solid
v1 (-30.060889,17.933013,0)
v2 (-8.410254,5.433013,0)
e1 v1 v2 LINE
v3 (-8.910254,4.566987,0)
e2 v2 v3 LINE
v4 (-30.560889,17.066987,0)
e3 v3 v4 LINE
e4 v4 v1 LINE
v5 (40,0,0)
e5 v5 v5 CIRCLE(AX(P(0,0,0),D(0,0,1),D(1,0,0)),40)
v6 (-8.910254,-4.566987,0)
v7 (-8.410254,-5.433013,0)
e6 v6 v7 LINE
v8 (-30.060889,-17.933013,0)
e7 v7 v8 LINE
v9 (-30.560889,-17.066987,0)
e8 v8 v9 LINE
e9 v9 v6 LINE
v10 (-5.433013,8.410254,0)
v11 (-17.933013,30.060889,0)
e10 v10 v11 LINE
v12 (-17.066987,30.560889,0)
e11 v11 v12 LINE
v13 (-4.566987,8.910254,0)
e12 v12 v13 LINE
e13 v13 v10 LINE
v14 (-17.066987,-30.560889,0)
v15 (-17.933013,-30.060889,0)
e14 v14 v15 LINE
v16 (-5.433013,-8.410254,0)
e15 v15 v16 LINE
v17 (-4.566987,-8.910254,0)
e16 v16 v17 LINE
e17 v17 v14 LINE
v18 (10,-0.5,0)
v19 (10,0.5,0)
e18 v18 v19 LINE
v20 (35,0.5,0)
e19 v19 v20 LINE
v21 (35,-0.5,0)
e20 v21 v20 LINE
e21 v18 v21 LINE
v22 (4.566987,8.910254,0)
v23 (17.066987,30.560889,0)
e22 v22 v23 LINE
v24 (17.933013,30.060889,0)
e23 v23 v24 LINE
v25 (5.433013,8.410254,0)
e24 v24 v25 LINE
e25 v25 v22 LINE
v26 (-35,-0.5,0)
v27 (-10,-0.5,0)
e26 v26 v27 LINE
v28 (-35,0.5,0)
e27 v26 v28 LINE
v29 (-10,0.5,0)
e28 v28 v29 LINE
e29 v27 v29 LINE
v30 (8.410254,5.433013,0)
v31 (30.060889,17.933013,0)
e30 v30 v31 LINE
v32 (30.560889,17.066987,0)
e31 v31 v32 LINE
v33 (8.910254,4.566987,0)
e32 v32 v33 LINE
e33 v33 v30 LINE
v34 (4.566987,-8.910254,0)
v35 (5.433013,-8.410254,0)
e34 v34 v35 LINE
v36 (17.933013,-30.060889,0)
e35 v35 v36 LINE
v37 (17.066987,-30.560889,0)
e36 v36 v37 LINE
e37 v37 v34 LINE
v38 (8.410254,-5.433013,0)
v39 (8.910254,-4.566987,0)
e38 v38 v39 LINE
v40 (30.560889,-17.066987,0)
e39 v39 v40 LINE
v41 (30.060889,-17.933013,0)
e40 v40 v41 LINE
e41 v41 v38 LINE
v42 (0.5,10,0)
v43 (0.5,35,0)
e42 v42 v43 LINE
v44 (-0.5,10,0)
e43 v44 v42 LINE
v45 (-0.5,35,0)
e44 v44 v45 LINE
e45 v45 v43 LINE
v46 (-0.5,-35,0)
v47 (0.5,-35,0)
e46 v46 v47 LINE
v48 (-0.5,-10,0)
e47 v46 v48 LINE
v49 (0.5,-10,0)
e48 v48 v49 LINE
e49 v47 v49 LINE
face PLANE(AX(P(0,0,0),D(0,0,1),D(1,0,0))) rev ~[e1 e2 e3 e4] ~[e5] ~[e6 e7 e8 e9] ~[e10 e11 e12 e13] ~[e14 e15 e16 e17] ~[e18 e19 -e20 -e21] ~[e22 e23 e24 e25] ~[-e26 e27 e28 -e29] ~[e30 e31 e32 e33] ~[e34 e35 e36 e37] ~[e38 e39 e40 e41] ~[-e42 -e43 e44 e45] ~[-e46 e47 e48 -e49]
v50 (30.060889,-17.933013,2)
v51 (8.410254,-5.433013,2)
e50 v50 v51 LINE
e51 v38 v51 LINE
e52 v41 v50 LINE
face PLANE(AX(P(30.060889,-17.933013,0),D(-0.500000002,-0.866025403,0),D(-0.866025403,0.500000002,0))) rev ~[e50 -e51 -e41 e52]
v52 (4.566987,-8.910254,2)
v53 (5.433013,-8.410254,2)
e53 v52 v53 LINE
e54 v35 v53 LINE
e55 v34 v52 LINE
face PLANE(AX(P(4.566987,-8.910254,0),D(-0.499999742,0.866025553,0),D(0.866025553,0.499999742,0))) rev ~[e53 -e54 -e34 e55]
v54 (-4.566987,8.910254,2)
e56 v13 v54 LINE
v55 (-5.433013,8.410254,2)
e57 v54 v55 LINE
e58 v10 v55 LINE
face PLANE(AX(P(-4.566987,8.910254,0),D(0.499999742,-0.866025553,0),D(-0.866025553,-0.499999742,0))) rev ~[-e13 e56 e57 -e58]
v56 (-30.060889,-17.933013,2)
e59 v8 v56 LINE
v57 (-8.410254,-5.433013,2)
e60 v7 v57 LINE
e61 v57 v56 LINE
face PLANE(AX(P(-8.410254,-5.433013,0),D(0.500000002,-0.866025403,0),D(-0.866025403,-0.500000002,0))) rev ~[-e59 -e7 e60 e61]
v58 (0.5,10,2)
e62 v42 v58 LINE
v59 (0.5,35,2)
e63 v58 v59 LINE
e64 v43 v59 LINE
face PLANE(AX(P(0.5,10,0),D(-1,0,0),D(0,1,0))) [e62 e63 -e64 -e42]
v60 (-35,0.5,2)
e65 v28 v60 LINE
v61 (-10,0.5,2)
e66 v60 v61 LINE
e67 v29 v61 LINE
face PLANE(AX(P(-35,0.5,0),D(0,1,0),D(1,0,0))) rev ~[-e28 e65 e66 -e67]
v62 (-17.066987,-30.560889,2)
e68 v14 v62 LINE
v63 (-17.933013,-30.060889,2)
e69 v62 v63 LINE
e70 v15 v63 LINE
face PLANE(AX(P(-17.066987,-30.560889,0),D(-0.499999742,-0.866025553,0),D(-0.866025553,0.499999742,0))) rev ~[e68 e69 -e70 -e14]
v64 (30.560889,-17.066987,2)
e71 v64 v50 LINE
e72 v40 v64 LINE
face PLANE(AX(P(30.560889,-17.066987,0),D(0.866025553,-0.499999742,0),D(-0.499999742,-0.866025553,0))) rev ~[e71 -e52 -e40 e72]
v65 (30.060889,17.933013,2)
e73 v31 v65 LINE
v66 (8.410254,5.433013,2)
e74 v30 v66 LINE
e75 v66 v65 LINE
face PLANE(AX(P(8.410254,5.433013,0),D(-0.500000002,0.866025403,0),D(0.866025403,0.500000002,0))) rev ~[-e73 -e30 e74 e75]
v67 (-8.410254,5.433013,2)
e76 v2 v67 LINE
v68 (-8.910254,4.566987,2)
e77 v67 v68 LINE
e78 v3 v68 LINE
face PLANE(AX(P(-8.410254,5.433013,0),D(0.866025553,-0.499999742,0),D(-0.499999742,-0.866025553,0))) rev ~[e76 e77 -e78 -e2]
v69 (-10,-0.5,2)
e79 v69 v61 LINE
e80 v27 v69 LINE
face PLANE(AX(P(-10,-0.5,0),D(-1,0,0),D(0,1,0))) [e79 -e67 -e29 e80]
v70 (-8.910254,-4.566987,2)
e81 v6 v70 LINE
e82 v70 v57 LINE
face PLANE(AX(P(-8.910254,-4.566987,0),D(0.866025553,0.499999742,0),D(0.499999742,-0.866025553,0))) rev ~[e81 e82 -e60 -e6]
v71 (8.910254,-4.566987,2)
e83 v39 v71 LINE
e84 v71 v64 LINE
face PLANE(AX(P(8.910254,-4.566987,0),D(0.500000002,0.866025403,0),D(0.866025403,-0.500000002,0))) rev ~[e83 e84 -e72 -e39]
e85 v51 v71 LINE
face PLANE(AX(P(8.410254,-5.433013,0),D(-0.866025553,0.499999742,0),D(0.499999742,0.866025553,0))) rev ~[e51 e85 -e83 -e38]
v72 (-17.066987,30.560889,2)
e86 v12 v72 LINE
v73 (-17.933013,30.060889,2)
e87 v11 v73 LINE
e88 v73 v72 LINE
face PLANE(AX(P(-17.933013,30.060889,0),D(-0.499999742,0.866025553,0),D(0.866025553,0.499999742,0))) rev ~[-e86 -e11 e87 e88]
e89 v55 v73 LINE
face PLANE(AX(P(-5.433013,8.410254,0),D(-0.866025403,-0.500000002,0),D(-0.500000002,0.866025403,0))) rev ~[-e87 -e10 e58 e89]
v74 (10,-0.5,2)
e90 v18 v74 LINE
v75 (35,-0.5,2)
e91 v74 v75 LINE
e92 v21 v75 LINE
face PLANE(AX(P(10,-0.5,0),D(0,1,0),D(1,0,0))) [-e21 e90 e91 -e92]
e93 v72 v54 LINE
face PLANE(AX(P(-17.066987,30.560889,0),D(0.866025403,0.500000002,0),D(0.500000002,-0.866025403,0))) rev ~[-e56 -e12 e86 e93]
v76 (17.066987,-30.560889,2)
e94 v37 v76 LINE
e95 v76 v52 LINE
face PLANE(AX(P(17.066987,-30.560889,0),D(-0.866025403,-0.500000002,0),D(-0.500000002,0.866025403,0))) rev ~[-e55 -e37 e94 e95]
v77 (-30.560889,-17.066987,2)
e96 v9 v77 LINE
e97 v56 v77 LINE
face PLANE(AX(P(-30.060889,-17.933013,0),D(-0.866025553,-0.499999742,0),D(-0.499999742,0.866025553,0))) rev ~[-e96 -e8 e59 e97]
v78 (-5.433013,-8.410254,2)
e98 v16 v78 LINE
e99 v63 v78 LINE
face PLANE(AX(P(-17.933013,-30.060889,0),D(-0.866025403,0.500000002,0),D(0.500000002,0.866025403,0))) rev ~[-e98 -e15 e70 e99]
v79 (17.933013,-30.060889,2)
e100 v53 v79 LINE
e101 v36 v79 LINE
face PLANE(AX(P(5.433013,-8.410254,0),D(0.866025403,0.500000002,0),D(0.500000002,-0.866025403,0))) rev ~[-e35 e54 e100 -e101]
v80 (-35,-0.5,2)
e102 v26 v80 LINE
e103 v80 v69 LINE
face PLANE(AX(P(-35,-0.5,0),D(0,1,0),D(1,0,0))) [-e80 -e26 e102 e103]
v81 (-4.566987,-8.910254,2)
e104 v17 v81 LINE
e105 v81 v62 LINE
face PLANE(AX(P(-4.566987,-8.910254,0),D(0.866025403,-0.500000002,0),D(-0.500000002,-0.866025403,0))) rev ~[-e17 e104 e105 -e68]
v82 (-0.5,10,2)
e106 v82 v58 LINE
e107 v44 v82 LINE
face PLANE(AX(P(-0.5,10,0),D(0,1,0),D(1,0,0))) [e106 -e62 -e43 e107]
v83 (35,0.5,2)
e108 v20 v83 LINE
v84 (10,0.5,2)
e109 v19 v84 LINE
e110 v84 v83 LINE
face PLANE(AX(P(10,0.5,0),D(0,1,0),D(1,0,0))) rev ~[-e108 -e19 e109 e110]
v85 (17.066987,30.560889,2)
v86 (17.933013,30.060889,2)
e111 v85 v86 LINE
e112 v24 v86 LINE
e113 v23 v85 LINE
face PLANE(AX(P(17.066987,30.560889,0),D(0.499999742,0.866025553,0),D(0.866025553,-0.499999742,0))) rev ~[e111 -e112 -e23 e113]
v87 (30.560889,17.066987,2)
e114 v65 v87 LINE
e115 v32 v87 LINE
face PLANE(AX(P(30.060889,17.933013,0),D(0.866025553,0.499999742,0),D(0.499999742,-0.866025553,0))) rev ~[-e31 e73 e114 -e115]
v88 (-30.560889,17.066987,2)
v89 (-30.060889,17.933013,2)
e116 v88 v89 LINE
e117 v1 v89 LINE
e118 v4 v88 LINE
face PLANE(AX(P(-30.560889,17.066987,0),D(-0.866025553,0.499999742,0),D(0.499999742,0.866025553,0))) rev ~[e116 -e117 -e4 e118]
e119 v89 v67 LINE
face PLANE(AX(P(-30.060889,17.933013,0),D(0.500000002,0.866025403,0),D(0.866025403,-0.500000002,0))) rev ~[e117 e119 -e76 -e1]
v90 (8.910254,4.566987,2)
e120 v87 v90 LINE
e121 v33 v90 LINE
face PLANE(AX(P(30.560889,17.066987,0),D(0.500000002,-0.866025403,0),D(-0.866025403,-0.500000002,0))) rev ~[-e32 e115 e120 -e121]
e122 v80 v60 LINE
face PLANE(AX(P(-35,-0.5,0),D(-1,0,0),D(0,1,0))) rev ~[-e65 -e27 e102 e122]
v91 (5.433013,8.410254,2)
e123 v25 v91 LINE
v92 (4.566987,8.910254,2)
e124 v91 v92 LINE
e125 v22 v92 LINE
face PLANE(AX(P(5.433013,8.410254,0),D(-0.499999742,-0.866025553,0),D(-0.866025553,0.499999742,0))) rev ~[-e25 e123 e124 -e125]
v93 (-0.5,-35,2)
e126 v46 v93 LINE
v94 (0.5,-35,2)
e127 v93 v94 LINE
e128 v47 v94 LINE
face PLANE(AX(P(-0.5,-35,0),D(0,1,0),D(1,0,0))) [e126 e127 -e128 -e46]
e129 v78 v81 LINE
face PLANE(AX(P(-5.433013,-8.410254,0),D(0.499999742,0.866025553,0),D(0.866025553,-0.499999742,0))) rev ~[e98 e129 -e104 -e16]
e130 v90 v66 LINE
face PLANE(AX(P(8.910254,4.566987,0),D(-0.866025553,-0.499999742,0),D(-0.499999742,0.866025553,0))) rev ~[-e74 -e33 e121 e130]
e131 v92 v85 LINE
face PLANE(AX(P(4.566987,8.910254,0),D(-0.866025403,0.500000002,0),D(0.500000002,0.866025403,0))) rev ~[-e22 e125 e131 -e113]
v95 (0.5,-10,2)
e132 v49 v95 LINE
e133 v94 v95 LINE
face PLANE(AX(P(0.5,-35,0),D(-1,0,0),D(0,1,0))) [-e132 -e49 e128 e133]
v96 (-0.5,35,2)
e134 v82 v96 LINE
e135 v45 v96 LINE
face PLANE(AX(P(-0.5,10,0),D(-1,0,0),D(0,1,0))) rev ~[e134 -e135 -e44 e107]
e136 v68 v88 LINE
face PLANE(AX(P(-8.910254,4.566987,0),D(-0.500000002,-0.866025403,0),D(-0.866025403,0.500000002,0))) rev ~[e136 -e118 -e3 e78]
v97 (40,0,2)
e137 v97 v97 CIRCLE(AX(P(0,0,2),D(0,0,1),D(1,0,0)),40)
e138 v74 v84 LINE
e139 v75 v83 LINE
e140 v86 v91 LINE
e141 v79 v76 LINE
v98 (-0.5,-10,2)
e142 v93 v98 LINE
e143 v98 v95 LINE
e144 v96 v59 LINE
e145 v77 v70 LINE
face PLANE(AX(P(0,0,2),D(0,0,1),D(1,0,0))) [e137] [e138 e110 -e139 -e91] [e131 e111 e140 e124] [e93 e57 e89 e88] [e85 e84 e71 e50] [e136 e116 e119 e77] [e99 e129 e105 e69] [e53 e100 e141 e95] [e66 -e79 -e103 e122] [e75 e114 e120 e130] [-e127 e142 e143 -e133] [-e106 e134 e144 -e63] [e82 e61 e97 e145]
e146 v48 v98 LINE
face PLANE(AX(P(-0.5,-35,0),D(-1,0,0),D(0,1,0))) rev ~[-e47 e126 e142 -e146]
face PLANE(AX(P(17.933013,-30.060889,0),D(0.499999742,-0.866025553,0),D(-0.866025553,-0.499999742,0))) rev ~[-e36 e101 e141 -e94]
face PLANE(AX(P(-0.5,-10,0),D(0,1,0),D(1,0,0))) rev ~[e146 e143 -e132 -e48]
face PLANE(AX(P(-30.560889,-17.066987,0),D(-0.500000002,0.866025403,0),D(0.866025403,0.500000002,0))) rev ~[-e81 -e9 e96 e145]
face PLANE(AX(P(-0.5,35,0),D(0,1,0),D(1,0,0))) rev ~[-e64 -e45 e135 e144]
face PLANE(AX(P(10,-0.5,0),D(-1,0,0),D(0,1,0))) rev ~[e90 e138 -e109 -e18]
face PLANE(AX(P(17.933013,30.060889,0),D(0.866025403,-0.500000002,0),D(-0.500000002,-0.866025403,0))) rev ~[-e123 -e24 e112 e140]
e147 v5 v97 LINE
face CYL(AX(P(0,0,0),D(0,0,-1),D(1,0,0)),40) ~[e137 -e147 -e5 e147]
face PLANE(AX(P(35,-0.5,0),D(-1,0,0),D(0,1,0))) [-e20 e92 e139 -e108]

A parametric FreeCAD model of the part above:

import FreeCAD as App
import Part
import Sketcher

V = App.Vector
Q = App.Units.Quantity

doc = App.newDocument("Part")
body = doc.addObject("PartDesign::Body", "Body")

# Sketch on XY plane
sketch1 = doc.addObject("Sketcher::SketchObject", "Sketch")
body.addObject(sketch1)
sketch1.AttachmentSupport = (doc.XY_Plane, [""])
sketch1.MapMode = "FlatFace"
sketch1.addGeometry(Part.Circle(V(0, 0, 0), V(0, 0, 1), 40), False)
sketch1.addGeometry(Part.LineSegment(V(-5.4, -8.4, 0), V(-4.6, -8.9, 0)), False)
sketch1.addGeometry(Part.LineSegment(V(-4.6, -8.9, 0), V(-17.1, -30.6, 0)), False)
sketch1.addGeometry(Part.LineSegment(V(-17.1, -30.6, 0), V(-17.9, -30.1, 0)), False)
sketch1.addGeometry(Part.LineSegment(V(-17.9, -30.1, 0), V(-5.4, -8.4, 0)), False)
sketch1.addGeometry(Part.LineSegment(V(-8.9, -4.6, 0), V(-8.4, -5.4, 0)), False)
sketch1.addGeometry(Part.LineSegment(V(-8.4, -5.4, 0), V(-30.1, -17.9, 0)), False)
sketch1.addGeometry(Part.LineSegment(V(-30.1, -17.9, 0), V(-30.6, -17.1, 0)), False)
sketch1.addGeometry(Part.LineSegment(V(-30.6, -17.1, 0), V(-8.9, -4.6, 0)), False)
sketch1.addGeometry(Part.LineSegment(V(0.5, -35, 0), V(-0.5, -35, 0)), False)
sketch1.addGeometry(Part.LineSegment(V(-0.5, -35, 0), V(-0.5, -10, 0)), False)
sketch1.addGeometry(Part.LineSegment(V(-0.5, -10, 0), V(0.5, -10, 0)), False)
sketch1.addGeometry(Part.LineSegment(V(0.5, -10, 0), V(0.5, -35, 0)), False)
sketch1.addGeometry(Part.LineSegment(V(4.6, -8.9, 0), V(5.4, -8.4, 0)), False)
sketch1.addGeometry(Part.LineSegment(V(5.4, -8.4, 0), V(17.9, -30.1, 0)), False)
sketch1.addGeometry(Part.LineSegment(V(17.9, -30.1, 0), V(17.1, -30.6, 0)), False)
sketch1.addGeometry(Part.LineSegment(V(17.1, -30.6, 0), V(4.6, -8.9, 0)), False)
sketch1.addGeometry(Part.LineSegment(V(8.4, -5.4, 0), V(8.9, -4.6, 0)), False)
sketch1.addGeometry(Part.LineSegment(V(8.9, -4.6, 0), V(30.6, -17.1, 0)), False)
sketch1.addGeometry(Part.LineSegment(V(30.6, -17.1, 0), V(30.1, -17.9, 0)), False)
sketch1.addGeometry(Part.LineSegment(V(30.1, -17.9, 0), V(8.4, -5.4, 0)), False)
sketch1.addGeometry(Part.LineSegment(V(-10, -0.5, 0), V(-35, -0.5, 0)), False)
sketch1.addGeometry(Part.LineSegment(V(-35, -0.5, 0), V(-35, 0.5, 0)), False)
sketch1.addGeometry(Part.LineSegment(V(-35, 0.5, 0), V(-10, 0.5, 0)), False)
sketch1.addGeometry(Part.LineSegment(V(-10, 0.5, 0), V(-10, -0.5, 0)), False)
sketch1.addGeometry(Part.LineSegment(V(-8.4, 5.4, 0), V(-8.9, 4.6, 0)), False)
sketch1.addGeometry(Part.LineSegment(V(-8.9, 4.6, 0), V(-30.6, 17.1, 0)), False)
sketch1.addGeometry(Part.LineSegment(V(-30.6, 17.1, 0), V(-30.1, 17.9, 0)), False)
sketch1.addGeometry(Part.LineSegment(V(-30.1, 17.9, 0), V(-8.4, 5.4, 0)), False)
sketch1.addGeometry(Part.LineSegment(V(-4.6, 8.9, 0), V(-5.4, 8.4, 0)), False)
sketch1.addGeometry(Part.LineSegment(V(-5.4, 8.4, 0), V(-17.9, 30.1, 0)), False)
sketch1.addGeometry(Part.LineSegment(V(-17.9, 30.1, 0), V(-17.1, 30.6, 0)), False)
sketch1.addGeometry(Part.LineSegment(V(-17.1, 30.6, 0), V(-4.6, 8.9, 0)), False)
sketch1.addGeometry(Part.LineSegment(V(35, -0.5, 0), V(10, -0.5, 0)), False)
sketch1.addGeometry(Part.LineSegment(V(10, -0.5, 0), V(10, 0.5, 0)), False)
sketch1.addGeometry(Part.LineSegment(V(10, 0.5, 0), V(35, 0.5, 0)), False)
sketch1.addGeometry(Part.LineSegment(V(35, 0.5, 0), V(35, -0.5, 0)), False)
sketch1.addGeometry(Part.LineSegment(V(8.9, 4.6, 0), V(8.4, 5.4, 0)), False)
sketch1.addGeometry(Part.LineSegment(V(8.4, 5.4, 0), V(30.1, 17.9, 0)), False)
sketch1.addGeometry(Part.LineSegment(V(30.1, 17.9, 0), V(30.6, 17.1, 0)), False)
sketch1.addGeometry(Part.LineSegment(V(30.6, 17.1, 0), V(8.9, 4.6, 0)), False)
sketch1.addGeometry(Part.LineSegment(V(0.5, 10, 0), V(-0.5, 10, 0)), False)
sketch1.addGeometry(Part.LineSegment(V(-0.5, 10, 0), V(-0.5, 35, 0)), False)
sketch1.addGeometry(Part.LineSegment(V(-0.5, 35, 0), V(0.5, 35, 0)), False)
sketch1.addGeometry(Part.LineSegment(V(0.5, 35, 0), V(0.5, 10, 0)), False)
sketch1.addGeometry(Part.LineSegment(V(5.4, 8.4, 0), V(4.6, 8.9, 0)), False)
sketch1.addGeometry(Part.LineSegment(V(4.6, 8.9, 0), V(17.1, 30.6, 0)), False)
sketch1.addGeometry(Part.LineSegment(V(17.1, 30.6, 0), V(17.9, 30.1, 0)), False)
sketch1.addGeometry(Part.LineSegment(V(17.9, 30.1, 0), V(5.4, 8.4, 0)), False)
sketch1.addConstraint(Sketcher.Constraint("Coincident", 1, 2, 2, 1))
sketch1.addConstraint(Sketcher.Constraint("Coincident", 2, 2, 3, 1))
sketch1.addConstraint(Sketcher.Constraint("Coincident", 3, 2, 4, 1))
sketch1.addConstraint(Sketcher.Constraint("Coincident", 4, 2, 1, 1))
sketch1.addConstraint(Sketcher.Constraint("Coincident", 5, 2, 6, 1))
sketch1.addConstraint(Sketcher.Constraint("Coincident", 6, 2, 7, 1))
sketch1.addConstraint(Sketcher.Constraint("Coincident", 7, 2, 8, 1))
sketch1.addConstraint(Sketcher.Constraint("Coincident", 8, 2, 5, 1))
sketch1.addConstraint(Sketcher.Constraint("Coincident", 9, 2, 10, 1))
sketch1.addConstraint(Sketcher.Constraint("Coincident", 10, 2, 11, 1))
sketch1.addConstraint(Sketcher.Constraint("Coincident", 11, 2, 12, 1))
sketch1.addConstraint(Sketcher.Constraint("Coincident", 12, 2, 9, 1))
sketch1.addConstraint(Sketcher.Constraint("Coincident", 13, 2, 14, 1))
sketch1.addConstraint(Sketcher.Constraint("Coincident", 14, 2, 15, 1))
sketch1.addConstraint(Sketcher.Constraint("Coincident", 15, 2, 16, 1))
sketch1.addConstraint(Sketcher.Constraint("Coincident", 16, 2, 13, 1))
sketch1.addConstraint(Sketcher.Constraint("Coincident", 17, 2, 18, 1))
sketch1.addConstraint(Sketcher.Constraint("Coincident", 18, 2, 19, 1))
sketch1.addConstraint(Sketcher.Constraint("Coincident", 19, 2, 20, 1))
sketch1.addConstraint(Sketcher.Constraint("Coincident", 20, 2, 17, 1))
sketch1.addConstraint(Sketcher.Constraint("Coincident", 21, 2, 22, 1))
sketch1.addConstraint(Sketcher.Constraint("Coincident", 22, 2, 23, 1))
sketch1.addConstraint(Sketcher.Constraint("Coincident", 23, 2, 24, 1))
sketch1.addConstraint(Sketcher.Constraint("Coincident", 24, 2, 21, 1))
sketch1.addConstraint(Sketcher.Constraint("Coincident", 25, 2, 26, 1))
sketch1.addConstraint(Sketcher.Constraint("Coincident", 26, 2, 27, 1))
sketch1.addConstraint(Sketcher.Constraint("Coincident", 27, 2, 28, 1))
sketch1.addConstraint(Sketcher.Constraint("Coincident", 28, 2, 25, 1))
sketch1.addConstraint(Sketcher.Constraint("Coincident", 29, 2, 30, 1))
sketch1.addConstraint(Sketcher.Constraint("Coincident", 30, 2, 31, 1))
sketch1.addConstraint(Sketcher.Constraint("Coincident", 31, 2, 32, 1))
sketch1.addConstraint(Sketcher.Constraint("Coincident", 32, 2, 29, 1))
sketch1.addConstraint(Sketcher.Constraint("Coincident", 33, 2, 34, 1))
sketch1.addConstraint(Sketcher.Constraint("Coincident", 34, 2, 35, 1))
sketch1.addConstraint(Sketcher.Constraint("Coincident", 35, 2, 36, 1))
sketch1.addConstraint(Sketcher.Constraint("Coincident", 36, 2, 33, 1))
sketch1.addConstraint(Sketcher.Constraint("Coincident", 37, 2, 38, 1))
sketch1.addConstraint(Sketcher.Constraint("Coincident", 38, 2, 39, 1))
sketch1.addConstraint(Sketcher.Constraint("Coincident", 39, 2, 40, 1))
sketch1.addConstraint(Sketcher.Constraint("Coincident", 40, 2, 37, 1))
sketch1.addConstraint(Sketcher.Constraint("Coincident", 41, 2, 42, 1))
sketch1.addConstraint(Sketcher.Constraint("Coincident", 42, 2, 43, 1))
sketch1.addConstraint(Sketcher.Constraint("Coincident", 43, 2, 44, 1))
sketch1.addConstraint(Sketcher.Constraint("Coincident", 44, 2, 41, 1))
sketch1.addConstraint(Sketcher.Constraint("Coincident", 45, 2, 46, 1))
sketch1.addConstraint(Sketcher.Constraint("Coincident", 46, 2, 47, 1))
sketch1.addConstraint(Sketcher.Constraint("Coincident", 47, 2, 48, 1))
sketch1.addConstraint(Sketcher.Constraint("Coincident", 48, 2, 45, 1))
sketch1.addConstraint(Sketcher.Constraint("Horizontal", 9))
sketch1.addConstraint(Sketcher.Constraint("Vertical", 10))
sketch1.addConstraint(Sketcher.Constraint("Horizontal", 11))
sketch1.addConstraint(Sketcher.Constraint("Vertical", 12))
sketch1.addConstraint(Sketcher.Constraint("Horizontal", 21))
sketch1.addConstraint(Sketcher.Constraint("Vertical", 22))
sketch1.addConstraint(Sketcher.Constraint("Horizontal", 23))
sketch1.addConstraint(Sketcher.Constraint("Vertical", 24))
sketch1.addConstraint(Sketcher.Constraint("Horizontal", 33))
sketch1.addConstraint(Sketcher.Constraint("Vertical", 34))
sketch1.addConstraint(Sketcher.Constraint("Horizontal", 35))
sketch1.addConstraint(Sketcher.Constraint("Vertical", 36))
sketch1.addConstraint(Sketcher.Constraint("Horizontal", 41))
sketch1.addConstraint(Sketcher.Constraint("Vertical", 42))
sketch1.addConstraint(Sketcher.Constraint("Horizontal", 43))
sketch1.addConstraint(Sketcher.Constraint("Vertical", 44))
sketch1.addConstraint(Sketcher.Constraint("Coincident", 0, 3, -1, 1))
sketch1.addConstraint(Sketcher.Constraint("Symmetric", 17, 2, 25, 2, -1, 1))
sketch1.addConstraint(Sketcher.Constraint("Symmetric", 18, 2, 26, 2, -1, 1))
sketch1.addConstraint(Sketcher.Constraint("Symmetric", 19, 2, 27, 2, -1, 1))
sketch1.addConstraint(Sketcher.Constraint("Symmetric", 20, 2, 28, 2, -1, 1))
sketch1.addConstraint(Sketcher.Constraint("Symmetric", 13, 2, 29, 2, -1, 1))
sketch1.addConstraint(Sketcher.Constraint("Symmetric", 14, 2, 30, 2, -1, 1))
sketch1.addConstraint(Sketcher.Constraint("Symmetric", 15, 2, 31, 2, -1, 1))
sketch1.addConstraint(Sketcher.Constraint("Symmetric", 16, 2, 32, 2, -1, 1))
sketch1.addConstraint(Sketcher.Constraint("Symmetric", 23, 2, 33, 2, -1, 1))
sketch1.addConstraint(Sketcher.Constraint("Symmetric", 21, 2, 35, 2, -1, 1))
sketch1.addConstraint(Sketcher.Constraint("Symmetric", 5, 2, 37, 2, -1, 1))
sketch1.addConstraint(Sketcher.Constraint("Symmetric", 6, 2, 38, 2, -1, 1))
sketch1.addConstraint(Sketcher.Constraint("Symmetric", 7, 2, 39, 2, -1, 1))
sketch1.addConstraint(Sketcher.Constraint("Symmetric", 8, 2, 40, 2, -1, 1))
sketch1.addConstraint(Sketcher.Constraint("Symmetric", 11, 2, 41, 2, -1, 1))
sketch1.addConstraint(Sketcher.Constraint("Symmetric", 9, 2, 43, 2, -1, 1))
sketch1.addConstraint(Sketcher.Constraint("Symmetric", 1, 2, 45, 2, -1, 1))
sketch1.addConstraint(Sketcher.Constraint("Symmetric", 2, 2, 46, 2, -1, 1))
sketch1.addConstraint(Sketcher.Constraint("Symmetric", 3, 2, 47, 2, -1, 1))
sketch1.addConstraint(Sketcher.Constraint("Symmetric", 4, 2, 48, 2, -1, 1))
sketch1.addConstraint(Sketcher.Constraint("Symmetric", 4, 2, 13, 2, -2))
sketch1.addConstraint(Sketcher.Constraint("Symmetric", 3, 2, 14, 2, -2))
sketch1.addConstraint(Sketcher.Constraint("Symmetric", 2, 2, 15, 2, -2))
sketch1.addConstraint(Sketcher.Constraint("Symmetric", 1, 2, 16, 2, -2))
sketch1.addConstraint(Sketcher.Constraint("Symmetric", 8, 2, 17, 2, -2))
sketch1.addConstraint(Sketcher.Constraint("Symmetric", 7, 2, 18, 2, -2))
sketch1.addConstraint(Sketcher.Constraint("Symmetric", 6, 2, 19, 2, -2))
sketch1.addConstraint(Sketcher.Constraint("Symmetric", 5, 2, 20, 2, -2))
sketch1.addConstraint(Sketcher.Constraint("Perpendicular", 1, 2))
sketch1.addConstraint(Sketcher.Constraint("Perpendicular", 2, 3))
sketch1.addConstraint(Sketcher.Constraint("Perpendicular", 3, 4))
sketch1.addConstraint(Sketcher.Constraint("Perpendicular", 5, 6))
sketch1.addConstraint(Sketcher.Constraint("Perpendicular", 6, 7))
sketch1.addConstraint(Sketcher.Constraint("Perpendicular", 7, 8))
sketch1.addConstraint(Sketcher.Constraint("Parallel", 8, 13))
sketch1.addConstraint(Sketcher.Constraint("Horizontal", 24, 2, 33, 2))
sketch1.addConstraint(Sketcher.Constraint("Vertical", 10, 2, 41, 2))
sketch1.addConstraint(Sketcher.Constraint("Equal", 35, 10))
sketch1.addConstraint(Sketcher.Constraint("Equal", 43, 22))
sketch1.addConstraint(Sketcher.Constraint("Equal", 3, 5))
sketch1.addConstraint(Sketcher.Constraint("Equal", 4, 6))
sketch1.addConstraint(Sketcher.Constraint("Diameter", 0, Q("80 mm")))
sketch1.addConstraint(Sketcher.Constraint("DistanceX", 9, 2, 9, 1, Q("1 mm")))
sketch1.addConstraint(Sketcher.Constraint("DistanceX", 21, 2, 21, 1, Q("25 mm")))
sketch1.addConstraint(Sketcher.Constraint("Angle", 1, Q("-29.999983 deg")))
sketch1.addConstraint(Sketcher.Constraint("Distance", 1, Q("1.000001 mm")))
sketch1.addConstraint(Sketcher.Constraint("Distance", 2, Q("25 mm")))
sketch1.addConstraint(Sketcher.Constraint("DistanceY", 9, 2, -1, 1, Q("35 mm")))
sketch1.addConstraint(Sketcher.Constraint("DistanceX", 21, 2, -1, 1, Q("35 mm")))
sketch1.addConstraint(Sketcher.Constraint("DistanceX", 1, 2, 13, 2, Q("10 mm")))
sketch1.addConstraint(Sketcher.Constraint("DistanceY", 5, 2, 25, 2, Q("10 mm")))
sketch1.addConstraint(Sketcher.Constraint("DistanceX", 6, 2, 2, 2, Q("12.993902 mm")))
sketch1.addConstraint(Sketcher.Constraint("DistanceY", 3, 2, 7, 2, Q("12.993902 mm")))
pad1 = doc.addObject("PartDesign::Pad", "Pad")
body.addObject(pad1)
pad1.Profile = sketch1
pad1.Length = 2

doc.recompute()
